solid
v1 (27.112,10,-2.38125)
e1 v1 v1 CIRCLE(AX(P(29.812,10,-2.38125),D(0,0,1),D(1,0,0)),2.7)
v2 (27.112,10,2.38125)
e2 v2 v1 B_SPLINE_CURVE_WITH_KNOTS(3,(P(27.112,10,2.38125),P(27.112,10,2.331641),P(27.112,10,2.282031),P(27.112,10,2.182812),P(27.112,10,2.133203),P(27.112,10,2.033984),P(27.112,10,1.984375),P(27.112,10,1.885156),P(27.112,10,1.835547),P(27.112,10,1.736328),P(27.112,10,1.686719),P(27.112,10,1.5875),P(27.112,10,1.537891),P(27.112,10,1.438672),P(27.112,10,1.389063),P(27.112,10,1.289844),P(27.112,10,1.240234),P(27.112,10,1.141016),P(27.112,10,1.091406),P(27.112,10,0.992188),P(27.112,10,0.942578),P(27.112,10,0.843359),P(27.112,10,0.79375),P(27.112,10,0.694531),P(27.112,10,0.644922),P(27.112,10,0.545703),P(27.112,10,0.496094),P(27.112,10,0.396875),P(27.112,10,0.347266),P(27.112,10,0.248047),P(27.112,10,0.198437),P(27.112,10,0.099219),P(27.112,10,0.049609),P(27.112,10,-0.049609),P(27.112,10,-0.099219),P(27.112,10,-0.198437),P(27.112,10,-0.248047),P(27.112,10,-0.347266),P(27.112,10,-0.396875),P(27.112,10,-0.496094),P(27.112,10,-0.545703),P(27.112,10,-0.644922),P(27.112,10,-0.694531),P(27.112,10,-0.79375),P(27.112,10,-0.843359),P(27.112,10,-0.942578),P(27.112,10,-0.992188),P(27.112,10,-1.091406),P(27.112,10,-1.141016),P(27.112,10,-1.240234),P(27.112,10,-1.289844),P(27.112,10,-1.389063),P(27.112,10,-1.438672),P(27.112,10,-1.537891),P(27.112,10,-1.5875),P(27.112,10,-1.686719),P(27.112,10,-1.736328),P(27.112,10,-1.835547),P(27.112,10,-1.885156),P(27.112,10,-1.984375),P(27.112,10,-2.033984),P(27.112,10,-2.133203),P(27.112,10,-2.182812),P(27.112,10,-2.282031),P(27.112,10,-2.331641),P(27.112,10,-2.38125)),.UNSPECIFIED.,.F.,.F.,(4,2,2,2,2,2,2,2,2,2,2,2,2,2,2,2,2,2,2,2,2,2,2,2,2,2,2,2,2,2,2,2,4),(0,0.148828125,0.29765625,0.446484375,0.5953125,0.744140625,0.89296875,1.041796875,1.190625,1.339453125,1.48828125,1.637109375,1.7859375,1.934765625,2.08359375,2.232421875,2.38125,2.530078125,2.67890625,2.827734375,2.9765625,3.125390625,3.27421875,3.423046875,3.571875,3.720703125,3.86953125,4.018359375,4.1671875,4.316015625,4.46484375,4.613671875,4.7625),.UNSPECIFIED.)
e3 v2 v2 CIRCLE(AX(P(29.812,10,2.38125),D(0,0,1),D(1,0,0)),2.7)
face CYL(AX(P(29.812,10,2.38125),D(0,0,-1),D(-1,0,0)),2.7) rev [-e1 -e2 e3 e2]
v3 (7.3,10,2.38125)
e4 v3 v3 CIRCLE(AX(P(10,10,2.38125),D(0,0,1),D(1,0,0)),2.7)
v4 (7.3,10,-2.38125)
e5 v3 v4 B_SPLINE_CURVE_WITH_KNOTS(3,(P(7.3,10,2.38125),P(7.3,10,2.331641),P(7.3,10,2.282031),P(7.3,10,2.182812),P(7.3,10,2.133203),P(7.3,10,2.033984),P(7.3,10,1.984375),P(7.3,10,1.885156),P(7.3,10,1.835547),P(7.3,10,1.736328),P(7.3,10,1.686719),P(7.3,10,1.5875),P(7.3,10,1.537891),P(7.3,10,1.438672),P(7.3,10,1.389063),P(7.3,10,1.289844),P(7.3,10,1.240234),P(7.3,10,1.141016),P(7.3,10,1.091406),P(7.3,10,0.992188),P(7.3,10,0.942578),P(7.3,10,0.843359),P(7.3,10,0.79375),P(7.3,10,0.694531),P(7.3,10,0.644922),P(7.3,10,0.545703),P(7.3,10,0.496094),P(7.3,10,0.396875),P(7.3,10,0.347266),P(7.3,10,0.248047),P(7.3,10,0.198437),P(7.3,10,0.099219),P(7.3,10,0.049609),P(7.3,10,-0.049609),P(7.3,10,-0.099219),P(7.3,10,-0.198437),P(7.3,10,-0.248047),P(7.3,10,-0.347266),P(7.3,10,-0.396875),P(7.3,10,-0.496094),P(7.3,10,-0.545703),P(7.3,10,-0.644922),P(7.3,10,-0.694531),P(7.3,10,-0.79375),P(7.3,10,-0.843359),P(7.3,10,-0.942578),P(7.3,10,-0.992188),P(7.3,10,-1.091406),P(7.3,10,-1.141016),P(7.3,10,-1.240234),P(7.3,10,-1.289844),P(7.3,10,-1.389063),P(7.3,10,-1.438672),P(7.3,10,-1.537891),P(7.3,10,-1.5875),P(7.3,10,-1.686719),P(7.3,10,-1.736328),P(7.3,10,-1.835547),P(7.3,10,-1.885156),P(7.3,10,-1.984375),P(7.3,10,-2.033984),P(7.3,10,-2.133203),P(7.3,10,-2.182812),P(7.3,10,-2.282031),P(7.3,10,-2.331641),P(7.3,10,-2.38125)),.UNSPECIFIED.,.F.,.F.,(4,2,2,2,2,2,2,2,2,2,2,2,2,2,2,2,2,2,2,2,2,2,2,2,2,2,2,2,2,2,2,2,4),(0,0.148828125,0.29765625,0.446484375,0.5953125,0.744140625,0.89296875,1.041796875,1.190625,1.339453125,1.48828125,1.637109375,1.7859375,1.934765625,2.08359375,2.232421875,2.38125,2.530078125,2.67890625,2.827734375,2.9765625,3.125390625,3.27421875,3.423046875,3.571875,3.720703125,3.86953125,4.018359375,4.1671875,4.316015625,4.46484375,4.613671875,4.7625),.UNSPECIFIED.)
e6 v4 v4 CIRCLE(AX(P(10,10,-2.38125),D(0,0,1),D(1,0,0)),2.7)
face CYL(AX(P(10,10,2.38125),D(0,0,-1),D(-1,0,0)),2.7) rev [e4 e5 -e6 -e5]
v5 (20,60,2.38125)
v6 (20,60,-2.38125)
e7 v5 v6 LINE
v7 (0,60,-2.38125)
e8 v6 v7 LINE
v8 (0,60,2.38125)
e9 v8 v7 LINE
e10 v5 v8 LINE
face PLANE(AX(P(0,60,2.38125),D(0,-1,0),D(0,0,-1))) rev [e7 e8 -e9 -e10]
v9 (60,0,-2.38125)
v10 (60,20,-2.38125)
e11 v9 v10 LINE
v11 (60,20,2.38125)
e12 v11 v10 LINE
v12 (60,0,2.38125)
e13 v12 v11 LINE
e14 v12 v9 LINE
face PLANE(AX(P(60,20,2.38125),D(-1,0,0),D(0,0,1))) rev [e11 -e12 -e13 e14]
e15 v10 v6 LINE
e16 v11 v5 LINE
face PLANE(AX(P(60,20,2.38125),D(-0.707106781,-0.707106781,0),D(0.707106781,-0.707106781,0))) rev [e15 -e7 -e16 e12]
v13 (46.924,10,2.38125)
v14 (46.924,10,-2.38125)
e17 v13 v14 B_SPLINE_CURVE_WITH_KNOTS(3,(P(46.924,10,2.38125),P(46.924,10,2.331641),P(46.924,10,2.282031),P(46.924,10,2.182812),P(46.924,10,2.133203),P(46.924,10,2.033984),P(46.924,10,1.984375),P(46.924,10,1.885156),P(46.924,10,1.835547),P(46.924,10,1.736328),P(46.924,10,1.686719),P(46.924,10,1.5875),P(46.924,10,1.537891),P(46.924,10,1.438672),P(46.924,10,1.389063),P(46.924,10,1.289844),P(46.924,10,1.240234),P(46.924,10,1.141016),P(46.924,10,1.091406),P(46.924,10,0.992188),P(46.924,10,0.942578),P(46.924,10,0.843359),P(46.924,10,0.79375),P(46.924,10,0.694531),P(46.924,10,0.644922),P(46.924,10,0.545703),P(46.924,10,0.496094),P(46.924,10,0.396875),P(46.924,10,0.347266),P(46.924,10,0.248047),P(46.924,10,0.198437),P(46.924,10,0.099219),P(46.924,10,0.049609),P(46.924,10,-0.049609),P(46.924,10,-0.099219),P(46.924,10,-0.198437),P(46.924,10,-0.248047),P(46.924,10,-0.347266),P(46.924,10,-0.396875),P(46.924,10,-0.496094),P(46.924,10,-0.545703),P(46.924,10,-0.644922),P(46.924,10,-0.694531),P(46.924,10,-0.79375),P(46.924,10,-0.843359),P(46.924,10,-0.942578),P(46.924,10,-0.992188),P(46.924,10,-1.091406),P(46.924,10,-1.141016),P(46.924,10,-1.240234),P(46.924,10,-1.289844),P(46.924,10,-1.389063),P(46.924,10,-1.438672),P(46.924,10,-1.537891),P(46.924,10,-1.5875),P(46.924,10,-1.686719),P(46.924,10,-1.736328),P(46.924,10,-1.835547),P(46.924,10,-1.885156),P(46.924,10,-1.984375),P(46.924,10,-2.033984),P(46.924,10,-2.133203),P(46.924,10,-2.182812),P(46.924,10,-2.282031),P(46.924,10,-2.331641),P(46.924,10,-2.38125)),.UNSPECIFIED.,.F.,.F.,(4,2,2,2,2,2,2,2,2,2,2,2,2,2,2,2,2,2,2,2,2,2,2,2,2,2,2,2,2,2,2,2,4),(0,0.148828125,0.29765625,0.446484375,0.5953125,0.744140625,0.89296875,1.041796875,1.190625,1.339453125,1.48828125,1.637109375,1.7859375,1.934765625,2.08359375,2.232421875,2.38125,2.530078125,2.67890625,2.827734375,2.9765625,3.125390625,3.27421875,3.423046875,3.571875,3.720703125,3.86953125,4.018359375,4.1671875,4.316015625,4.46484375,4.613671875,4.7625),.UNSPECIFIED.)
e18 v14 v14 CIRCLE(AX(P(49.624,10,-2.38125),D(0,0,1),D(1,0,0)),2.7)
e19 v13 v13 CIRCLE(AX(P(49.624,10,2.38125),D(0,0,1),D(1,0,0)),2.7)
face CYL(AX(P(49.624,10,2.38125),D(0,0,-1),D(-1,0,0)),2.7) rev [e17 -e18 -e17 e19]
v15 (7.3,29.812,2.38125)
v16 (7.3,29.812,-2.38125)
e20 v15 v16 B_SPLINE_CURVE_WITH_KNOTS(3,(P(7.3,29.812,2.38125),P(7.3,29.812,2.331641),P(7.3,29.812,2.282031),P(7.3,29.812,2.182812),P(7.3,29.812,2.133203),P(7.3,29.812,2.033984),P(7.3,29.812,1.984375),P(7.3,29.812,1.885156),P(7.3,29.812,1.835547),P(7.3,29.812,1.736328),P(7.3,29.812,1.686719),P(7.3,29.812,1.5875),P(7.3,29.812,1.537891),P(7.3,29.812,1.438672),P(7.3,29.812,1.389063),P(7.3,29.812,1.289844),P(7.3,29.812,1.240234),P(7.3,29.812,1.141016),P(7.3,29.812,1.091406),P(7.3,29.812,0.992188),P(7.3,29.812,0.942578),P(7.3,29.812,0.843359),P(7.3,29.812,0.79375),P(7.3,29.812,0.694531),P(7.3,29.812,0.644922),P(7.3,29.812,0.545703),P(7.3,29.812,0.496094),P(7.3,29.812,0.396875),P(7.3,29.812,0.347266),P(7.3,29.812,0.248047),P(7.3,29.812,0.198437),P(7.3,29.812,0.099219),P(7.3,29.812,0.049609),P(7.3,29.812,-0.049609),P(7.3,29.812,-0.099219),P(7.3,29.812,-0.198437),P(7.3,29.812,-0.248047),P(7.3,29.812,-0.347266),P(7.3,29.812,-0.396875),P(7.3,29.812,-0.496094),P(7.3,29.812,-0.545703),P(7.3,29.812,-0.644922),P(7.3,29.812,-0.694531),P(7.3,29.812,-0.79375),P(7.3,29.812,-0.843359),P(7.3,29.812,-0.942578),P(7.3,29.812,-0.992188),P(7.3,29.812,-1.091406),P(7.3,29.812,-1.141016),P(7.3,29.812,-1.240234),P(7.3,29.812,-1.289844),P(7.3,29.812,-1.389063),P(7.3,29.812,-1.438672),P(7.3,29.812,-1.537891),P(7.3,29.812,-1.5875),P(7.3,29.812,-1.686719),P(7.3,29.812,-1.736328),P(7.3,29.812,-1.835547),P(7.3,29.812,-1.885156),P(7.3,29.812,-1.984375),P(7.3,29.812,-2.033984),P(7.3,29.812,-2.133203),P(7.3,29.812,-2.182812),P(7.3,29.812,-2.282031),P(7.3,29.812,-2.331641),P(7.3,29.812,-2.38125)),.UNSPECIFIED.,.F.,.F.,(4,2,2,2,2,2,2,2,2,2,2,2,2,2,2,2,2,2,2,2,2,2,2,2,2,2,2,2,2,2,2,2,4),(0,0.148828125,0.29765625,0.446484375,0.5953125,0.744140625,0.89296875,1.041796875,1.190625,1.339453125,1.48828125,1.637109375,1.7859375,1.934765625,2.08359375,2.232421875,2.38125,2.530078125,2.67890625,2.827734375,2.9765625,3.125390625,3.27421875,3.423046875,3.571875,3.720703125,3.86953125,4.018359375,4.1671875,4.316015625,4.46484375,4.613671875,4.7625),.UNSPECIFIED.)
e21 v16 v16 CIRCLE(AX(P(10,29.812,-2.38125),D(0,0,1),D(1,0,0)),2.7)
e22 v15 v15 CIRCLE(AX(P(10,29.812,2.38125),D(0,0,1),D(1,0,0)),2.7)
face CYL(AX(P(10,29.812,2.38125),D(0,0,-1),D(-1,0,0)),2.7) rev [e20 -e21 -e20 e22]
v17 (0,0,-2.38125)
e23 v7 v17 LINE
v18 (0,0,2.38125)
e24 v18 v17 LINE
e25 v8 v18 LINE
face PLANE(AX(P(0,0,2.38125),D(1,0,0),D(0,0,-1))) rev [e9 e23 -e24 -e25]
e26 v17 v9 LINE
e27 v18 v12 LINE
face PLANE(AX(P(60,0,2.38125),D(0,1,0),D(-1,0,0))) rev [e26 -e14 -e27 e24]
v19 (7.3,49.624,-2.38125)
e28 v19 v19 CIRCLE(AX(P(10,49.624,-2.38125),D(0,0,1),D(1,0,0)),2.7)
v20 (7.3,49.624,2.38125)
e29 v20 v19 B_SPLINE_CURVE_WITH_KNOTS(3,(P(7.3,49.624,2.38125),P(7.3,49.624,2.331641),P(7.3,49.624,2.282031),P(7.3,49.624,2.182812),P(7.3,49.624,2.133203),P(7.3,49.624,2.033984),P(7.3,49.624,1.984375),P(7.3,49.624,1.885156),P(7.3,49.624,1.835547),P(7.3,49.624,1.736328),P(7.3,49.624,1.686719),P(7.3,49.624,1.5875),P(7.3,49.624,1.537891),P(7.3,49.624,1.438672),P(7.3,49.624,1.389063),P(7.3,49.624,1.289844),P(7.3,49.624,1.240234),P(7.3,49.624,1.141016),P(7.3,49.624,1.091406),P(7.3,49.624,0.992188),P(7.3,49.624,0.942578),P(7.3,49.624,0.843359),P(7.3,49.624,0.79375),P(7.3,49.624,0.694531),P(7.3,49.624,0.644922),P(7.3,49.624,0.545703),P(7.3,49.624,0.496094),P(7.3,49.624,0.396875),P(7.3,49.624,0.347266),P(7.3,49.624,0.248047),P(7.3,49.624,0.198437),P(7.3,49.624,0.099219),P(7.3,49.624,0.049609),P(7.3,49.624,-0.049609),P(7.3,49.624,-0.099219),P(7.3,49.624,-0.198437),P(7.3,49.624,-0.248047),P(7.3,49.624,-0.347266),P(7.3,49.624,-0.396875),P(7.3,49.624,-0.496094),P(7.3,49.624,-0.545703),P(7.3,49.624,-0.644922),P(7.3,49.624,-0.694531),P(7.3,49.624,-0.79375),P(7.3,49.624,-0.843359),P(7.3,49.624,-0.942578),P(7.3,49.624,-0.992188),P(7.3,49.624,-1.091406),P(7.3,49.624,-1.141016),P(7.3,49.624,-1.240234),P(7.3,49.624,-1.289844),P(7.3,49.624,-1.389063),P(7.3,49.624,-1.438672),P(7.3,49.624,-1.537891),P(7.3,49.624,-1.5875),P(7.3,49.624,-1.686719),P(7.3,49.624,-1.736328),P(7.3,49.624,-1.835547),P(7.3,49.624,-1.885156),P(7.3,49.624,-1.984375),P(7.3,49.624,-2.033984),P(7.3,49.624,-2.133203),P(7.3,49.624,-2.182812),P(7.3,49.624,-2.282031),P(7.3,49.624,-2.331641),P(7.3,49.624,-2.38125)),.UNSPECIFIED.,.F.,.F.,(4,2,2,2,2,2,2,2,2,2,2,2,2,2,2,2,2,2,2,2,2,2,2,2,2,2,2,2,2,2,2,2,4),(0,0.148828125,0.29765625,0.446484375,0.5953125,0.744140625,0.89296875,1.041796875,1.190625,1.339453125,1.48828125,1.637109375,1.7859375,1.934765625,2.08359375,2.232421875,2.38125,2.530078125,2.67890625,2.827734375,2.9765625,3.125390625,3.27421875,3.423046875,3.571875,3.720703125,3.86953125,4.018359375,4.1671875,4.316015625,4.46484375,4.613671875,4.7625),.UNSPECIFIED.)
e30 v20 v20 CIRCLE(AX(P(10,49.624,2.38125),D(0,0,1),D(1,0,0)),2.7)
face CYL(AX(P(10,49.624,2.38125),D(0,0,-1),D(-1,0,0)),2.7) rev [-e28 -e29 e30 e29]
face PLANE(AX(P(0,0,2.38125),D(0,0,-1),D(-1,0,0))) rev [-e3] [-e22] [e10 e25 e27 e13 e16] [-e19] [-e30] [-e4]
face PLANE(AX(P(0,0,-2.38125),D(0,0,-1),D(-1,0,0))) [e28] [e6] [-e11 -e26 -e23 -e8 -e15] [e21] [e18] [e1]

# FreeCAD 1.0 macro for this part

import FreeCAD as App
import Part
import Sketcher
Q = App.Units.Quantity

doc = App.newDocument("Part")
body = doc.addObject("PartDesign::Body", "Body")

# Sketch on XY plane
sketch1 = body.newObject("Sketcher::SketchObject", "Sketch")
sketch1.AttachmentSupport = (doc.getObject("XY_Plane"), [""])
sketch1.MapMode = "FlatFace"
sketch1.addGeometry(Part.LineSegment(App.Vector(0, 60, 0), App.Vector(0, 0, 0)), False)
sketch1.addGeometry(Part.LineSegment(App.Vector(0, 0, 0), App.Vector(60, 0, 0)), False)
sketch1.addGeometry(Part.LineSegment(App.Vector(60, 0, 0), App.Vector(60, 20, 0)), False)
sketch1.addGeometry(Part.LineSegment(App.Vector(60, 20, 0), App.Vector(20, 60, 0)), False)
sketch1.addGeometry(Part.LineSegment(App.Vector(20, 60, 0), App.Vector(0, 60, 0)), False)
sketch1.addGeometry(Part.Circle(App.Vector(49.6, 10, 0), App.Vector(0, 0, 1), 2.7), False)
sketch1.addGeometry(Part.Circle(App.Vector(29.8, 10, 0), App.Vector(0, 0, 1), 2.7), False)
sketch1.addGeometry(Part.Circle(App.Vector(10, 10, 0), App.Vector(0, 0, 1), 2.7), False)
sketch1.addGeometry(Part.Circle(App.Vector(10, 29.8, 0), App.Vector(0, 0, 1), 2.7), False)
sketch1.addGeometry(Part.Circle(App.Vector(10, 49.6, 0), App.Vector(0, 0, 1), 2.7), False)
sketch1.addConstraint(Sketcher.Constraint("Coincident", 0, 2, 1, 1))
sketch1.addConstraint(Sketcher.Constraint("Coincident", 1, 2, 2, 1))
sketch1.addConstraint(Sketcher.Constraint("Coincident", 2, 2, 3, 1))
sketch1.addConstraint(Sketcher.Constraint("Coincident", 3, 2, 4, 1))
sketch1.addConstraint(Sketcher.Constraint("Coincident", 4, 2, 0, 1))
sketch1.addConstraint(Sketcher.Constraint("Vertical", 0))
sketch1.addConstraint(Sketcher.Constraint("Horizontal", 1))
sketch1.addConstraint(Sketcher.Constraint("Vertical", 2))
sketch1.addConstraint(Sketcher.Constraint("Horizontal", 4))
sketch1.addConstraint(Sketcher.Constraint("Coincident", 0, 2, -1, 1))
sketch1.addConstraint(Sketcher.Constraint("Equal", 5, 6))
sketch1.addConstraint(Sketcher.Constraint("Equal", 6, 7))
sketch1.addConstraint(Sketcher.Constraint("Equal", 7, 8))
sketch1.addConstraint(Sketcher.Constraint("Equal", 8, 9))
sketch1.addConstraint(Sketcher.Constraint("Horizontal", 5, 3, 6, 3))
sketch1.addConstraint(Sketcher.Constraint("Horizontal", 6, 3, 7, 3))
sketch1.addConstraint(Sketcher.Constraint("Vertical", 7, 3, 8, 3))
sketch1.addConstraint(Sketcher.Constraint("Vertical", 8, 3, 9, 3))
sketch1.addConstraint(Sketcher.Constraint("Equal", 1, 0))
sketch1.addConstraint(Sketcher.Constraint("Equal", 4, 2))
sketch1.addConstraint(Sketcher.Constraint("Diameter", 5, Q("5.4 mm")))
sketch1.addConstraint(Sketcher.Constraint("DistanceX", 1, 1, 1, 2, Q("60 mm")))
sketch1.addConstraint(Sketcher.Constraint("DistanceX", 4, 2, 4, 1, Q("20 mm")))
sketch1.addConstraint(Sketcher.Constraint("DistanceY", -1, 1, 5, 3, Q("10 mm")))
sketch1.addConstraint(Sketcher.Constraint("DistanceX", -1, 1, 7, 3, Q("10 mm")))
sketch1.addConstraint(Sketcher.Constraint("DistanceX", -1, 1, 5, 3, Q("49.624 mm")))
sketch1.addConstraint(Sketcher.Constraint("DistanceX", -1, 1, 6, 3, Q("29.812 mm")))
sketch1.addConstraint(Sketcher.Constraint("DistanceY", -1, 1, 8, 3, Q("29.812 mm")))
sketch1.addConstraint(Sketcher.Constraint("DistanceY", -1, 1, 9, 3, Q("49.624 mm")))
pad1 = body.newObject("PartDesign::Pad", "Pad")
pad1.Profile = sketch1
pad1.Length = 4.7625
pad1.Midplane = True

doc.recompute()
